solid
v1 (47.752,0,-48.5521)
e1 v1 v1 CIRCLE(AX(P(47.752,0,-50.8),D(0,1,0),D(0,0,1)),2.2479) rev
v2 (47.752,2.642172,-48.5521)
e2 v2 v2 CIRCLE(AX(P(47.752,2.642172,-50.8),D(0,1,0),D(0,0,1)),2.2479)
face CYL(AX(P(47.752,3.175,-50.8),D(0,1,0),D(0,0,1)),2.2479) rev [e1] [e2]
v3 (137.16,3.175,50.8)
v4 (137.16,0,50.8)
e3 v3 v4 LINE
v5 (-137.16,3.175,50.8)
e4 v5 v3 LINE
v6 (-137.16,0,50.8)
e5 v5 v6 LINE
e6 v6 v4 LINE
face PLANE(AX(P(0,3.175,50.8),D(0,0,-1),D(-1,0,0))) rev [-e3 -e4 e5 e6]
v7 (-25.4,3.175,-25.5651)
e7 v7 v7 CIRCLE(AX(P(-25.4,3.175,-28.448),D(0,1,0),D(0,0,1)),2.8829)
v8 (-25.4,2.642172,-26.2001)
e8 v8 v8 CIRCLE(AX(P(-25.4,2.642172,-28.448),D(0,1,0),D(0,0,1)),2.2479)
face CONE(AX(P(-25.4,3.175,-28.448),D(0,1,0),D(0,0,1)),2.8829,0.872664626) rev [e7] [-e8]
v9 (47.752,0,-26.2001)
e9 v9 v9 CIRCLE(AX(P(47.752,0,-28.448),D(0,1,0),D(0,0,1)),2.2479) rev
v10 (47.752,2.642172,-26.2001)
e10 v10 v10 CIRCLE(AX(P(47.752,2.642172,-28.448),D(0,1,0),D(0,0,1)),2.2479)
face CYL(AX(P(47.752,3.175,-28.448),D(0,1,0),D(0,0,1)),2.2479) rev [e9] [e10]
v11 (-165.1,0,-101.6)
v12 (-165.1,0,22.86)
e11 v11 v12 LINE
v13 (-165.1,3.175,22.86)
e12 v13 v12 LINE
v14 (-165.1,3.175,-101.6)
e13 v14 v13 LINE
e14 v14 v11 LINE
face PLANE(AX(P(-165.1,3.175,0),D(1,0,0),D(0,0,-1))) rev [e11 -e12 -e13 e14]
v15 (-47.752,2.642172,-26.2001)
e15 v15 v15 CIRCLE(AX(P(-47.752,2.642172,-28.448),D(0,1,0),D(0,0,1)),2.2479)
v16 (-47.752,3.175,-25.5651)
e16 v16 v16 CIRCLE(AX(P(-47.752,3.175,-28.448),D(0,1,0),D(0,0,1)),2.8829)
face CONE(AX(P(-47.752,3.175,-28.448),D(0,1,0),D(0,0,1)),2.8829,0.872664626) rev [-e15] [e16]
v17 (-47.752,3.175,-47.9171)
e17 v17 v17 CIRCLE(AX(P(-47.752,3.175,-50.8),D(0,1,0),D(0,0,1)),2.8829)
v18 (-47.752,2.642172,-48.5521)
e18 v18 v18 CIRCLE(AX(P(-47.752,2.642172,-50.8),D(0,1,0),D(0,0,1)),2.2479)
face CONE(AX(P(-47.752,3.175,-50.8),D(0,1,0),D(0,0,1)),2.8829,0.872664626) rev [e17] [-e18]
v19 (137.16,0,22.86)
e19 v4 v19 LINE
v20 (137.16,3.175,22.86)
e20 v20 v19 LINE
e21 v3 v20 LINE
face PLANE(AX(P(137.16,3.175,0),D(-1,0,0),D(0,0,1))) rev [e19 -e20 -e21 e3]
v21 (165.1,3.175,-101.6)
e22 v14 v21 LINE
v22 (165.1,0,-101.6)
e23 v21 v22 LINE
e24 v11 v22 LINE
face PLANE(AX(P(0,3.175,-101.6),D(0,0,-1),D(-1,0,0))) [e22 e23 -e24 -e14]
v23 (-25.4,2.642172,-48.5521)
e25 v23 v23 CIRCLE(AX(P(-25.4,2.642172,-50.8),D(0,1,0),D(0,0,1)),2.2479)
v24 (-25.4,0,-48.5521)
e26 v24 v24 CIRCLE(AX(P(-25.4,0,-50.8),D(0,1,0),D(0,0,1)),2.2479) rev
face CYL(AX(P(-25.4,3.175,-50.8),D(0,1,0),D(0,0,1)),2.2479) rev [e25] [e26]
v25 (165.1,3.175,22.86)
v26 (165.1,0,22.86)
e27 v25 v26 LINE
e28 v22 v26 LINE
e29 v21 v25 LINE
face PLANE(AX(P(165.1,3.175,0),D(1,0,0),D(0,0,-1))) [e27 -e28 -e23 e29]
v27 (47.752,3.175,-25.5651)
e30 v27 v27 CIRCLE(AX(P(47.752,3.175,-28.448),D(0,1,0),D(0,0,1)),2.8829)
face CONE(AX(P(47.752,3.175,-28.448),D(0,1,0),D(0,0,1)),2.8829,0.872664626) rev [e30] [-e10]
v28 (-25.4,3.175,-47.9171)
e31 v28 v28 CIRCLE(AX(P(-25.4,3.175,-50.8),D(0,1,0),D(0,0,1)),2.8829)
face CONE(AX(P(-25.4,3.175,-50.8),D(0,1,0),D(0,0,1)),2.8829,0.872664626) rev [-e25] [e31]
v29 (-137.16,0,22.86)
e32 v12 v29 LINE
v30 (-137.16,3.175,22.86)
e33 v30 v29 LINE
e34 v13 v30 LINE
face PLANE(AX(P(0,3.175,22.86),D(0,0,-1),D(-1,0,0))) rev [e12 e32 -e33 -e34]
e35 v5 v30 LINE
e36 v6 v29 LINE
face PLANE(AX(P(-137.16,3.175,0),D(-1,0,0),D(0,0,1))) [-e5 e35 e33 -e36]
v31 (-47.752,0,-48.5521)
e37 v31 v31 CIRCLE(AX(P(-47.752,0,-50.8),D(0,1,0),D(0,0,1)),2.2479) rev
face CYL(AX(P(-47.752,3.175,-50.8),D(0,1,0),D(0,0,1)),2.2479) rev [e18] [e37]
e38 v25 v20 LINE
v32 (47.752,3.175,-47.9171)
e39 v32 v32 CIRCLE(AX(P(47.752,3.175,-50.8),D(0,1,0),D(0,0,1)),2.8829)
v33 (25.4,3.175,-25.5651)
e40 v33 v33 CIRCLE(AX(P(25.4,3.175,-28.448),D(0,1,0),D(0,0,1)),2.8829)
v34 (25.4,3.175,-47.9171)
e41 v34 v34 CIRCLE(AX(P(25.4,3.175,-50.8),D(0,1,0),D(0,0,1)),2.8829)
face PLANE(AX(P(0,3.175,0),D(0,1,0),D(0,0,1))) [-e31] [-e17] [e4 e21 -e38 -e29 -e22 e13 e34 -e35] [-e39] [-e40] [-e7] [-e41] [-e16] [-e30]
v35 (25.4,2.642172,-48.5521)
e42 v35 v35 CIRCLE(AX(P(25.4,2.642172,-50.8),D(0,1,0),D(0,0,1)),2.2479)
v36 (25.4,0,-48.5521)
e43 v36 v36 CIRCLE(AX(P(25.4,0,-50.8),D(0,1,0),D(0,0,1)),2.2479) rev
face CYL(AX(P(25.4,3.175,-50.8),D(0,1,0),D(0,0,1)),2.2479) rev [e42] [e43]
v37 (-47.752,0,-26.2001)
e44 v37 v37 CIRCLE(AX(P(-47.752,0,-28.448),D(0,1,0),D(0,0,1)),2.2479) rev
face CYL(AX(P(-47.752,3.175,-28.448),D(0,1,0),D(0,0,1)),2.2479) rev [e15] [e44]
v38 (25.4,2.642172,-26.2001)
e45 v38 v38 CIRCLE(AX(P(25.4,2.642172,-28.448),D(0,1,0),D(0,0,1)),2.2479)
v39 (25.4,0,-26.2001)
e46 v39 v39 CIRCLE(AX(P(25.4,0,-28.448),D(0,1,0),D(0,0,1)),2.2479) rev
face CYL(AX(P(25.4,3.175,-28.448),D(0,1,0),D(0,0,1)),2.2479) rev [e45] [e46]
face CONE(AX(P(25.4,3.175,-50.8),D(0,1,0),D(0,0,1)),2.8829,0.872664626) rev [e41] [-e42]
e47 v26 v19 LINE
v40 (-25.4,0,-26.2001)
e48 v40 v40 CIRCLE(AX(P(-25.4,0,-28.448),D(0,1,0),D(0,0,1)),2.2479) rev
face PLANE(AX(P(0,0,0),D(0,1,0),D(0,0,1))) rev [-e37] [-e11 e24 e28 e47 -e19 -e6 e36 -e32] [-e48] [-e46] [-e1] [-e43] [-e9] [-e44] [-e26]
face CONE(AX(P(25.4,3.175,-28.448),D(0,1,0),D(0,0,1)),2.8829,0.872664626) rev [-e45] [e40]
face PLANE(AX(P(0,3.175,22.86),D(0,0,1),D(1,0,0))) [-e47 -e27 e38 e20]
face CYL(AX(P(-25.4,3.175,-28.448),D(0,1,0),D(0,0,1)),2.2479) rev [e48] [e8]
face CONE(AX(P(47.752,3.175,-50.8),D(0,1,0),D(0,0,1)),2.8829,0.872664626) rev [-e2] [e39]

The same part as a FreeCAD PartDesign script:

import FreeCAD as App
import Part
import Sketcher

V = App.Vector
Q = App.Units.Quantity


def add_polygon(sketch, points):
    """Adds a closed chain of lines whose ends are joined by coincident constraints."""
    first, n = sketch.GeometryCount, len(points)
    for a, b in zip(points, points[1:] + points[:1]):
        sketch.addGeometry(Part.LineSegment(App.Vector(*a, 0), App.Vector(*b, 0)), False)
    for i in range(n):
        sketch.addConstraint(Sketcher.Constraint("Coincident", first + i, 2, first + (i + 1) % n, 1))

doc = App.newDocument("Part")
body = doc.addObject("PartDesign::Body", "Body")

# Sketch on XZ plane
sketch1 = body.newObject("Sketcher::SketchObject", "Sketch")
sketch1.AttachmentSupport = (doc.getObject("XZ_Plane"), [""])
sketch1.MapMode = "FlatFace"
add_polygon(sketch1, [(-137.16, 50.8), (137.16, 50.8), (137.16, 22.86), (165.1, 22.86), (165.1, -101.6), (-165.1, -101.6), (-165.1, 22.86), (-137.16, 22.86)])  # lines 0-7
sketch1.addConstraint([
    Sketcher.Constraint("Horizontal", 0),
    Sketcher.Constraint("Vertical", 1),
    Sketcher.Constraint("Horizontal", 2),
    Sketcher.Constraint("Vertical", 3),
    Sketcher.Constraint("Horizontal", 4),
    Sketcher.Constraint("Vertical", 5),
    Sketcher.Constraint("Horizontal", 6),
    Sketcher.Constraint("Vertical", 7),
    Sketcher.Constraint("Symmetric", 2, 2, 5, 2, -2),
    Sketcher.Constraint("Equal", 2, 6),
    Sketcher.Constraint("Equal", 6, 1),
    Sketcher.Constraint("DistanceX", 4, 2, 4, 1, Q("13 in")),
    Sketcher.Constraint("DistanceX", 0, 1, 0, 2, Q("10.8 in")),
    Sketcher.Constraint("DistanceY", 3, 2, 3, 1, Q("4.9 in")),
    Sketcher.Constraint("DistanceY", -1, 1, 0, 2, Q("2 in")),
])
pad1 = body.newObject("PartDesign::Pad", "Pad")
pad1.Profile = sketch1
pad1.Length = Q("0.125 in")
pad1.Reversed = True

# Sketch on XZ plane
sketch2 = body.newObject("Sketcher::SketchObject", "Sketch001")
sketch2.AttachmentSupport = (doc.getObject("XZ_Plane"), [""])
sketch2.MapMode = "FlatFace"
sketch2.AttachmentOffset = App.Placement(V(0, 0, -0.125 * 25.4), App.Rotation())
sketch2.addGeometry([
    Part.Circle(V(-47.752, -50.8, 0), V(0, 0, 1), 2.2479),  # 0
    Part.Circle(V(-25.4, -50.8, 0), V(0, 0, 1), 2.2479),  # 1
    Part.Circle(V(-25.4, -28.448, 0), V(0, 0, 1), 2.2479),  # 2
    Part.Circle(V(-47.752, -28.448, 0), V(0, 0, 1), 2.2479),  # 3
    Part.Circle(V(25.4, -28.448, 0), V(0, 0, 1), 2.2479),  # 4
    Part.Circle(V(25.4, -50.8, 0), V(0, 0, 1), 2.2479),  # 5
    Part.Circle(V(47.752, -50.8, 0), V(0, 0, 1), 2.2479),  # 6
    Part.Circle(V(47.752, -28.448, 0), V(0, 0, 1), 2.2479),  # 7
], False)
sketch2.addConstraint([
    Sketcher.Constraint("Equal", 0, 1),
    Sketcher.Constraint("Equal", 1, 2),
    Sketcher.Constraint("Equal", 2, 3),
    Sketcher.Constraint("Equal", 3, 4),
    Sketcher.Constraint("Equal", 4, 5),
    Sketcher.Constraint("Equal", 5, 6),
    Sketcher.Constraint("Equal", 6, 7),
    Sketcher.Constraint("Symmetric", 2, 3, 4, 3, -2),
    Sketcher.Constraint("Symmetric", 1, 3, 5, 3, -2),
    Sketcher.Constraint("Symmetric", 0, 3, 6, 3, -2),
    Sketcher.Constraint("Symmetric", 3, 3, 7, 3, -2),
    Sketcher.Constraint("Horizontal", 0, 3, 1, 3),
    Sketcher.Constraint("Horizontal", 2, 3, 3, 3),
    Sketcher.Constraint("Vertical", 1, 3, 2, 3),
    Sketcher.Constraint("Vertical", 0, 3, 3, 3),
    Sketcher.Constraint("Diameter", 0, Q("0.177 in")),
    Sketcher.Constraint("DistanceY", 0, 3, -1, 1, Q("2 in")),
    Sketcher.Constraint("DistanceX", 1, 3, -1, 1, Q("1 in")),
    Sketcher.Constraint("DistanceX", 0, 3, -1, 1, Q("1.88 in")),
    Sketcher.Constraint("DistanceY", 2, 3, -1, 1, Q("1.12 in")),
])
doc.recompute()
hole = body.newObject("PartDesign::Hole", "Hole")
hole.Profile = sketch2
hole.ThreadType = "None"
hole.Diameter = Q("0.177 in")
hole.DepthType = "Dimension"
hole.Depth = Q("0.125 in")
hole.DrillPoint = "Angled"
hole.DrillPointAngle = 118
hole.HoleCutType = "Countersink"
hole.HoleCutDiameter = Q("0.227 in")
hole.HoleCutCountersinkAngle = 100
hole.Reversed = True

doc.recompute()
